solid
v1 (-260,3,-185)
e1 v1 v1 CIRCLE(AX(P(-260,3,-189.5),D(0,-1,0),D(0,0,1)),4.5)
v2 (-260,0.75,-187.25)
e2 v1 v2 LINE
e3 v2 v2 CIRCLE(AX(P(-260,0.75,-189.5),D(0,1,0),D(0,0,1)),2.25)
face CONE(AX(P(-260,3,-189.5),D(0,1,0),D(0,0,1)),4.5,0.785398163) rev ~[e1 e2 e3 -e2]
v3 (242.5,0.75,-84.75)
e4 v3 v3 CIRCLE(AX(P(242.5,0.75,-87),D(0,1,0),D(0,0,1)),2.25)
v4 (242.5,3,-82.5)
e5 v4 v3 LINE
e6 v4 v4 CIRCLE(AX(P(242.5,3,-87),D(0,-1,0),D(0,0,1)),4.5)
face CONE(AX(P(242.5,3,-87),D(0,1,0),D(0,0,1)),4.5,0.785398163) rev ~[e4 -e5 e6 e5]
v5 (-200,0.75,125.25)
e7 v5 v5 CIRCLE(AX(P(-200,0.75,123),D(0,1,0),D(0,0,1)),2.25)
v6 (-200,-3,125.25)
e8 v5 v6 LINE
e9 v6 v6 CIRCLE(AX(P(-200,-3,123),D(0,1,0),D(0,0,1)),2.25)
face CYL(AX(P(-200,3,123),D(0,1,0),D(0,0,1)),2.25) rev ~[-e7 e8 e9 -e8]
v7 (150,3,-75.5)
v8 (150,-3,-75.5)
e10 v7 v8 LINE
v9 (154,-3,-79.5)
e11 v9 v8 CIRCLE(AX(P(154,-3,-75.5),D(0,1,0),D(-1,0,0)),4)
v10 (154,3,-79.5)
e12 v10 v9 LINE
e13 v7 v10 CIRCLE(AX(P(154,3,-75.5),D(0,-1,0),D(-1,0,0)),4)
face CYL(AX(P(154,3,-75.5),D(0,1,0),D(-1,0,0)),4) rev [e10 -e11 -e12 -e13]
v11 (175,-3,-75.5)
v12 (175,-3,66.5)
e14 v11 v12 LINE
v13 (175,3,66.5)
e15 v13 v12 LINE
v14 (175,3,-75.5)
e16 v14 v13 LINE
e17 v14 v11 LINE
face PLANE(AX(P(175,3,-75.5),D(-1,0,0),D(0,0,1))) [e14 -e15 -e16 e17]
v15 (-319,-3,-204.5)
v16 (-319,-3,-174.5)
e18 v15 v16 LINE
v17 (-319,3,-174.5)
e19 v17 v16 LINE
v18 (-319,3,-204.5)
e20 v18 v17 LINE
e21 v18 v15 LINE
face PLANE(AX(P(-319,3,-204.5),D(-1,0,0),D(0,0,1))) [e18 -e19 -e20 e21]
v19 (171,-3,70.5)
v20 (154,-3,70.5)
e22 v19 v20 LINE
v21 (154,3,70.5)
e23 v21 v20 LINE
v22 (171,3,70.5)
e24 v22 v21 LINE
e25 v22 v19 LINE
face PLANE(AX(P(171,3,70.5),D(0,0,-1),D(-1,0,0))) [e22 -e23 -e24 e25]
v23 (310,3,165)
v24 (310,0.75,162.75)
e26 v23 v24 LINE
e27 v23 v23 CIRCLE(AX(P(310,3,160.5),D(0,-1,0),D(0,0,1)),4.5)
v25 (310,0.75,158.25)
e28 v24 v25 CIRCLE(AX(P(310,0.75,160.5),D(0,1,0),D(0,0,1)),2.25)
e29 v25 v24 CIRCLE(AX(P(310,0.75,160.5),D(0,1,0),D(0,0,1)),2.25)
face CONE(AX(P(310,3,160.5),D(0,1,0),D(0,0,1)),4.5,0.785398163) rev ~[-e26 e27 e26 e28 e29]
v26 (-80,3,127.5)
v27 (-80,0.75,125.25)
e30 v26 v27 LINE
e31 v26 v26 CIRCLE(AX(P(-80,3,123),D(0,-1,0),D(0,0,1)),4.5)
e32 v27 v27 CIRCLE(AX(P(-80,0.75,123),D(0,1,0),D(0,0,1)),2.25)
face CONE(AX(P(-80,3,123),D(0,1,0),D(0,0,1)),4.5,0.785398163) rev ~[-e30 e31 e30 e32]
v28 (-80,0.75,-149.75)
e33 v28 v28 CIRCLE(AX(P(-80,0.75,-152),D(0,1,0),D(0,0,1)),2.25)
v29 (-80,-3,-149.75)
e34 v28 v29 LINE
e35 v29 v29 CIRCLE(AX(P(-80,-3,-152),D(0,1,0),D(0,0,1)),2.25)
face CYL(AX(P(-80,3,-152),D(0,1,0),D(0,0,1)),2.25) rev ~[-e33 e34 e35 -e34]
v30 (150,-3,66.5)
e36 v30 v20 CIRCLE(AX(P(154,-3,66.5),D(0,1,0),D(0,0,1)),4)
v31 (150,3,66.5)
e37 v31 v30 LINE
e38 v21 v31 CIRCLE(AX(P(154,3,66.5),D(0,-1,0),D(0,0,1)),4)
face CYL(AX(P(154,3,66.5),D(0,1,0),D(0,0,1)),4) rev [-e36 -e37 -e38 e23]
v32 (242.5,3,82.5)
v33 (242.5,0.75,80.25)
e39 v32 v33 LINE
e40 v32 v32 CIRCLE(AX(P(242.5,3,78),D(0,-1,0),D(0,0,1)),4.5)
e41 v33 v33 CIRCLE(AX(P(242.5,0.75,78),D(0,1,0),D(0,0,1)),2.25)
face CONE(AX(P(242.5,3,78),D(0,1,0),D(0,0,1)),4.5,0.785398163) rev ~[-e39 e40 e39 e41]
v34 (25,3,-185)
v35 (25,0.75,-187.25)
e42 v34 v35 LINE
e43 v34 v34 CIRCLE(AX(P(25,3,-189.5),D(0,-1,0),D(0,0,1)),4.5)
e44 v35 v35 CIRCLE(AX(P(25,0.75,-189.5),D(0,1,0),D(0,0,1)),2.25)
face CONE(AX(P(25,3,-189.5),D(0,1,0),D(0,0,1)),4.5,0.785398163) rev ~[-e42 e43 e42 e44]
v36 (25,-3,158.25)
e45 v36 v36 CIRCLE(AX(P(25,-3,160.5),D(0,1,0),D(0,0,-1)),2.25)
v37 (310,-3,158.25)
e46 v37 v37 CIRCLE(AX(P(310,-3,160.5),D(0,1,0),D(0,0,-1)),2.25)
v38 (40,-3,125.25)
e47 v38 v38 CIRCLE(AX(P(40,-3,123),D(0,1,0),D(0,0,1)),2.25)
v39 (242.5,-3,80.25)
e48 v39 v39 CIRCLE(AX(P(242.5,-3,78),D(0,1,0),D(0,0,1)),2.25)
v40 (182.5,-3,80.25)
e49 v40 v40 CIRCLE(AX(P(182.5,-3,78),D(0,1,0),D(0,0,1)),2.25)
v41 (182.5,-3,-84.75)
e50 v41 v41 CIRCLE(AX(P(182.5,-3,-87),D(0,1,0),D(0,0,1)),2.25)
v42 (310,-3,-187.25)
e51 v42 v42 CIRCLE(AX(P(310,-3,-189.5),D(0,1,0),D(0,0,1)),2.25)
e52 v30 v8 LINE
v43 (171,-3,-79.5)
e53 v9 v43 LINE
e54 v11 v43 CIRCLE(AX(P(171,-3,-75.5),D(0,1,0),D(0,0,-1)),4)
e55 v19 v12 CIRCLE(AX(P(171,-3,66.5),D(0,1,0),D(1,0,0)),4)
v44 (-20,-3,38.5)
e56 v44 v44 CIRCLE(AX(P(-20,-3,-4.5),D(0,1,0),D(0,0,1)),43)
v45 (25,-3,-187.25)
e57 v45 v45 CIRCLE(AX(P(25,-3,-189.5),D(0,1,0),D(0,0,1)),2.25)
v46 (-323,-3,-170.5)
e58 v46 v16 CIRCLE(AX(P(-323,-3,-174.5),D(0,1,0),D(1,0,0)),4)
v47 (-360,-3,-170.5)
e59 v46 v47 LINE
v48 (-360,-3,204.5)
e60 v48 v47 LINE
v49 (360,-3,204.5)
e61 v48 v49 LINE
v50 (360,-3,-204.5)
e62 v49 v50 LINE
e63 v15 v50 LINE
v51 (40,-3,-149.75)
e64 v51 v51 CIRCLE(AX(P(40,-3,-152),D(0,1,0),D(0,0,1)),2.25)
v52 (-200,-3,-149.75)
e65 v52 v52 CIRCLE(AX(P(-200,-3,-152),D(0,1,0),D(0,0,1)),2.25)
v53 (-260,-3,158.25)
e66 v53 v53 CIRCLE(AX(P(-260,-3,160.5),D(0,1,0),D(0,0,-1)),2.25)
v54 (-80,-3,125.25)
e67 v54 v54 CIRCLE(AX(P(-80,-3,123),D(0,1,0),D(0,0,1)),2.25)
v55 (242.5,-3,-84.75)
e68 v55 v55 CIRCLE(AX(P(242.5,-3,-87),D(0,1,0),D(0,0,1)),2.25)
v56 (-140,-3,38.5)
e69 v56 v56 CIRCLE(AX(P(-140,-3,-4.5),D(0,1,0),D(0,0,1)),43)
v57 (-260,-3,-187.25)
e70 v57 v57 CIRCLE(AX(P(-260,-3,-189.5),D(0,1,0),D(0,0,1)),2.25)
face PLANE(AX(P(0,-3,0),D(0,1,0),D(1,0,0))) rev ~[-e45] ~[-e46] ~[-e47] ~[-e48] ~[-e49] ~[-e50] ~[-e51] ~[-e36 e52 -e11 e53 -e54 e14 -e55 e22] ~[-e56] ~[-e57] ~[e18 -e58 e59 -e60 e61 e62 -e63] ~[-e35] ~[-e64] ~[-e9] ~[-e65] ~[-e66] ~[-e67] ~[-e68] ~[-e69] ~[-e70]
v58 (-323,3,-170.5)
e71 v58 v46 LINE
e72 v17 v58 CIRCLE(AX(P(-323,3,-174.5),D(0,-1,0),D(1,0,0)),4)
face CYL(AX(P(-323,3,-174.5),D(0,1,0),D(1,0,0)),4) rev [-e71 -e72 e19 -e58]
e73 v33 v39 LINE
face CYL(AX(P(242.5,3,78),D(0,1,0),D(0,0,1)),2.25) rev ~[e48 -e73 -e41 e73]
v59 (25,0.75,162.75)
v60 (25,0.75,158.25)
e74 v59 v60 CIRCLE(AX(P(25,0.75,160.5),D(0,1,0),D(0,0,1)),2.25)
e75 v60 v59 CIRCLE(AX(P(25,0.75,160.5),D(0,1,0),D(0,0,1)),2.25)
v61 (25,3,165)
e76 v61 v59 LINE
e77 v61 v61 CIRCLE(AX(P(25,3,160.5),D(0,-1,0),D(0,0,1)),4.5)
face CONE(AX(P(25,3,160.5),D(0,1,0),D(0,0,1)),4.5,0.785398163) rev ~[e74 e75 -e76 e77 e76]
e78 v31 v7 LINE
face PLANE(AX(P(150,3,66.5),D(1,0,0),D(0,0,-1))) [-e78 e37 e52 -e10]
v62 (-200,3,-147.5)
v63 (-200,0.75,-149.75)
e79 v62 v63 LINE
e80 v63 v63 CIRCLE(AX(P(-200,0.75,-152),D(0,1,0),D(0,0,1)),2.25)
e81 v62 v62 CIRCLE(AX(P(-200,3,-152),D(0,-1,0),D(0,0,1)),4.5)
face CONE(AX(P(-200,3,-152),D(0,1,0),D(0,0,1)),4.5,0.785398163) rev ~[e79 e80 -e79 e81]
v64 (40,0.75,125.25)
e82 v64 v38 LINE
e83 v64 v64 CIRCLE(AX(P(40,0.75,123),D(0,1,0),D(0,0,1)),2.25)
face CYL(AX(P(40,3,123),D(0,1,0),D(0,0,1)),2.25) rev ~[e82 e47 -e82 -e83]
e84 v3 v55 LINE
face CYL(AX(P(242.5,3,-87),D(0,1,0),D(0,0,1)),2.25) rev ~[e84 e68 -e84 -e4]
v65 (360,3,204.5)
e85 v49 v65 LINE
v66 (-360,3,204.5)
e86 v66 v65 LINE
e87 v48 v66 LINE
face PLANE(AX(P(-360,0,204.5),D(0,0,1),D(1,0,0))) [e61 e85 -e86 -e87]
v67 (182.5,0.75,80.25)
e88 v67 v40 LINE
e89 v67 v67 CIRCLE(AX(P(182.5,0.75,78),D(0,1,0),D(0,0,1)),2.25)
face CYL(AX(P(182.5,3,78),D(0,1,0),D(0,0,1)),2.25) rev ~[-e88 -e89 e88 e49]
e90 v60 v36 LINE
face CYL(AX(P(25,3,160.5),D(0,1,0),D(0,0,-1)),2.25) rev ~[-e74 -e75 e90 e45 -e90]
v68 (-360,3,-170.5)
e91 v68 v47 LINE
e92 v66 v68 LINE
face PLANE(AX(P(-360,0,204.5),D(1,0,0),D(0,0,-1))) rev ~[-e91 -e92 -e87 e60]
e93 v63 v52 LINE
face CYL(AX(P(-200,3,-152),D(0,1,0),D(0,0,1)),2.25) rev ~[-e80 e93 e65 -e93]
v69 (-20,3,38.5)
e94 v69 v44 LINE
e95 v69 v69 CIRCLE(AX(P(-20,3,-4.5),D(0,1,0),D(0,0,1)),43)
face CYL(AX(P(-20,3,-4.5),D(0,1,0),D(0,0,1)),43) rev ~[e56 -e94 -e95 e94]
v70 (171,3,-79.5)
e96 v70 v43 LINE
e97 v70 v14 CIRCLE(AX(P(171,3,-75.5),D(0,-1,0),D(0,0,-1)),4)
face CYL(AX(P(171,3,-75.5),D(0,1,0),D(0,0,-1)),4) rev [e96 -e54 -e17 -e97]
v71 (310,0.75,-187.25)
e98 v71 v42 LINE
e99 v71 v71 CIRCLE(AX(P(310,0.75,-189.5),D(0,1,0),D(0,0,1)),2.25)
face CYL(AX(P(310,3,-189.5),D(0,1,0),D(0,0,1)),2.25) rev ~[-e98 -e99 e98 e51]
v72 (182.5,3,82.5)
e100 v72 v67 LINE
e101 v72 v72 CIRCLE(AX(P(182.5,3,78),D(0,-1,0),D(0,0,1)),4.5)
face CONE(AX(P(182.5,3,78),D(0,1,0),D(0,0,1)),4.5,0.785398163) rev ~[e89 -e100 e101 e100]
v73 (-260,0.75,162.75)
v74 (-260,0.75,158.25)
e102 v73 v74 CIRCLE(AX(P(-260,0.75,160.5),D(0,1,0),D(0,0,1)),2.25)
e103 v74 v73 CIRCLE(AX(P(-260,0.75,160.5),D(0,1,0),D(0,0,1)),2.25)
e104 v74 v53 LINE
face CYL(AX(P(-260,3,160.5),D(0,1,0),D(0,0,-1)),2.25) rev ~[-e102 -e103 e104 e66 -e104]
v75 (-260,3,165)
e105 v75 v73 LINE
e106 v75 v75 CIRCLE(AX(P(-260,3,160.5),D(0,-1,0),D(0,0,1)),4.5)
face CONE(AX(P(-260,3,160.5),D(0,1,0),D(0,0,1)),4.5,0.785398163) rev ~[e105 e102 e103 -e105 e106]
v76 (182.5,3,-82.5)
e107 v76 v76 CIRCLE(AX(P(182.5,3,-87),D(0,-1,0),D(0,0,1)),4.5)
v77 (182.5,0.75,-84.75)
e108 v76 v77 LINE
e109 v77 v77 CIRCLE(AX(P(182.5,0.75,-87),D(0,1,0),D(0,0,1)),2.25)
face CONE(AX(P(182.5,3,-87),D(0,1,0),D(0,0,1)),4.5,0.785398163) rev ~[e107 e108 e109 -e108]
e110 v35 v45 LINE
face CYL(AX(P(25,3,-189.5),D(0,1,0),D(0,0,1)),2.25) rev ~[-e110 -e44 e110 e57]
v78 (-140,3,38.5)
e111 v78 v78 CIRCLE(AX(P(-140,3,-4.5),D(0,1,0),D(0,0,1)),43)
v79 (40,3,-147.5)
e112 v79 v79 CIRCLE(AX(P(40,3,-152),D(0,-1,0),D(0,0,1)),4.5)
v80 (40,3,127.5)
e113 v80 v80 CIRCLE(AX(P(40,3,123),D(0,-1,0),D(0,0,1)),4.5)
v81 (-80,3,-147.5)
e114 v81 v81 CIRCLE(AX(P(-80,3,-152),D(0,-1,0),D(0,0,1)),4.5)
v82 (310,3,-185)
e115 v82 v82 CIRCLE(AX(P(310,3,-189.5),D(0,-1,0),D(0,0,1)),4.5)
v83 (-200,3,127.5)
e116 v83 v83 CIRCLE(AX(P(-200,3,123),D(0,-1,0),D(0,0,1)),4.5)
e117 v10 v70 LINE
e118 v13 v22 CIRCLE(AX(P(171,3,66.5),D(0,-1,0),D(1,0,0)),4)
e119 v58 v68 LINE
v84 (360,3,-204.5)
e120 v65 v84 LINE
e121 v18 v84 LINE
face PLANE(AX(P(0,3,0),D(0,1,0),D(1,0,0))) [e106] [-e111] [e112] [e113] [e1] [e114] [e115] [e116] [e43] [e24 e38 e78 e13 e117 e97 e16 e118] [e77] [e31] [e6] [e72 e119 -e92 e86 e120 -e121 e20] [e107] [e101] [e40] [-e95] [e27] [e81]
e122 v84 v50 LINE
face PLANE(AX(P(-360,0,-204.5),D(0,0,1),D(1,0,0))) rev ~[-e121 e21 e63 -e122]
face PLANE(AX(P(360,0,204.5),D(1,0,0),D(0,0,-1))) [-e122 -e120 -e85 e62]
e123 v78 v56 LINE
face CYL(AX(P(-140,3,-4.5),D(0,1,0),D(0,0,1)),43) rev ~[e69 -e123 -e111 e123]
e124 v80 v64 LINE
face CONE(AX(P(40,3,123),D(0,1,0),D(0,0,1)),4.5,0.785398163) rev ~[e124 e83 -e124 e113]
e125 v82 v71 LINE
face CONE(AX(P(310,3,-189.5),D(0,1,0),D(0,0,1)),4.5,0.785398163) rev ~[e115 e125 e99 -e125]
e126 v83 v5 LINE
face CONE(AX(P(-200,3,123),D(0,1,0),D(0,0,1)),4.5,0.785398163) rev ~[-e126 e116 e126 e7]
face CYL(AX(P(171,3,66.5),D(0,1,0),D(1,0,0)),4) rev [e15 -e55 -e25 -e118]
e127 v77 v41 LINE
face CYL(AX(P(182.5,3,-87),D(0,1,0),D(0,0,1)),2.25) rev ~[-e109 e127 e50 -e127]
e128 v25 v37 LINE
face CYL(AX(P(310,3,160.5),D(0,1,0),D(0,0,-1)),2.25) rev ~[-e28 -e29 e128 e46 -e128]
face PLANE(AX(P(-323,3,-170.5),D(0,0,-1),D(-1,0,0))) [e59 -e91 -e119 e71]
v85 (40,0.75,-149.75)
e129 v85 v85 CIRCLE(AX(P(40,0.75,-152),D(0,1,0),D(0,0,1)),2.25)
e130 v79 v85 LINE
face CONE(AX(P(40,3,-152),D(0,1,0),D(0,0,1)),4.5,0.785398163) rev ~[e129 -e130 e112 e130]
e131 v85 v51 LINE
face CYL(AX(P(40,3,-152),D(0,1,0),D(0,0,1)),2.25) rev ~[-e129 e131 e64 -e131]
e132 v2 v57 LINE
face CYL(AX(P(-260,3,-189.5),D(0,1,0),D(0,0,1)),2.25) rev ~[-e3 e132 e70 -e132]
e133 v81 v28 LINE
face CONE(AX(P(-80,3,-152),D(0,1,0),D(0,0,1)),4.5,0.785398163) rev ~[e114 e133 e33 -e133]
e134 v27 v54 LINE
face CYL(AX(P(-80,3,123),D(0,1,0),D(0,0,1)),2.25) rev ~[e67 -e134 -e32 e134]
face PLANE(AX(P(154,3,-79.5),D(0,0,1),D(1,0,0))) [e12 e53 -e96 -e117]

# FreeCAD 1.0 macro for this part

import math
import FreeCAD as App
import Part
import Sketcher
Q = App.Units.Quantity

doc = App.newDocument("Part")
body = doc.addObject("PartDesign::Body", "Body")

sketch1 = body.newObject("Sketcher::SketchObject", "Sketch")
sketch1.AttachmentSupport = (doc.getObject("XZ_Plane"), [""])
sketch1.MapMode = "FlatFace"
sketch1.addGeometry([
    Part.LineSegment(App.Vector(-360, -204, 0), App.Vector(-360, 204, 0)),
    Part.LineSegment(App.Vector(-360, 204, 0), App.Vector(360, 204, 0)),
    Part.LineSegment(App.Vector(360, 204, 0), App.Vector(360, -204, 0)),
    Part.LineSegment(App.Vector(360, -204, 0), App.Vector(-360, -204, 0)),
], False)
sketch1.addConstraint([
    Sketcher.Constraint("Coincident", 0, 2, 1, 1),
    Sketcher.Constraint("Coincident", 1, 2, 2, 1),
    Sketcher.Constraint("Coincident", 2, 2, 3, 1),
    Sketcher.Constraint("Coincident", 3, 2, 0, 1),
    Sketcher.Constraint("Vertical", 0),
    Sketcher.Constraint("Horizontal", 1),
    Sketcher.Constraint("Vertical", 2),
    Sketcher.Constraint("Horizontal", 3),
    Sketcher.Constraint("Symmetric", 0, 2, 2, 2, -1, 1),
    Sketcher.Constraint("DistanceX", 1, 1, 1, 2, Q("720 mm")),
    Sketcher.Constraint("DistanceY", 0, 1, 0, 2, Q("409 mm")),
])
pad1 = body.newObject("PartDesign::Pad", "Pad")
pad1.Profile = sketch1
pad1.Length = 6
pad1.Midplane = True

sketch2 = body.newObject("Sketcher::SketchObject", "Sketch001")
sketch2.AttachmentSupport = (doc.getObject("XZ_Plane"), [""])
sketch2.MapMode = "FlatFace"
sketch2.AttachmentOffset = App.Placement(App.Vector(0, 0, -3), App.Rotation())
sketch2.addGeometry([
    Part.LineSegment(App.Vector(171, -79.5, 0), App.Vector(154, -79.5, 0)),
    Part.ArcOfCircle(Part.Circle(App.Vector(154, -75.5, 0), App.Vector(0, 0, 1), 4), math.radians(180), math.radians(270)),
    Part.LineSegment(App.Vector(150, -75.5, 0), App.Vector(150, 66.5, 0)),
    Part.ArcOfCircle(Part.Circle(App.Vector(154, 66.5, 0), App.Vector(0, 0, 1), 4), math.radians(90), math.radians(180)),
    Part.LineSegment(App.Vector(154, 70.5, 0), App.Vector(171, 70.5, 0)),
    Part.ArcOfCircle(Part.Circle(App.Vector(171, 66.5, 0), App.Vector(0, 0, 1), 4), math.radians(0), math.radians(90)),
    Part.LineSegment(App.Vector(175, 66.5, 0), App.Vector(175, -75.5, 0)),
    Part.ArcOfCircle(Part.Circle(App.Vector(171, -75.5, 0), App.Vector(0, 0, 1), 4), math.radians(-90), math.radians(0)),
], False)
sketch2.addConstraint([
    Sketcher.Constraint("Tangent", 0, 2, 1, 2),
    Sketcher.Constraint("Tangent", 1, 1, 2, 1),
    Sketcher.Constraint("Tangent", 2, 2, 3, 2),
    Sketcher.Constraint("Tangent", 3, 1, 4, 1),
    Sketcher.Constraint("Tangent", 4, 2, 5, 2),
    Sketcher.Constraint("Tangent", 5, 1, 6, 1),
    Sketcher.Constraint("Tangent", 6, 2, 7, 2),
    Sketcher.Constraint("Tangent", 7, 1, 0, 1),
    Sketcher.Constraint("Horizontal", 0),
    Sketcher.Constraint("Vertical", 2),
    Sketcher.Constraint("Horizontal", 4),
    Sketcher.Constraint("Vertical", 6),
    Sketcher.Constraint("Equal", 1, 3),
    Sketcher.Constraint("Equal", 3, 5),
    Sketcher.Constraint("Equal", 5, 7),
    Sketcher.Constraint("Radius", 1, Q("4 mm")),
    Sketcher.Constraint("DistanceX", 0, 2, 0, 1, Q("17 mm")),
    Sketcher.Constraint("DistanceY", 2, 1, 2, 2, Q("142 mm")),
    Sketcher.Constraint("DistanceX", -1, 1, 1, 3, Q("154 mm")),
    Sketcher.Constraint("DistanceY", 1, 3, -1, 1, Q("75.5 mm")),
])
pocket1 = body.newObject("PartDesign::Pocket", "Pocket")
pocket1.Profile = sketch2
pocket1.Type = "ThroughAll"
pocket1.Reversed = True

sketch3 = body.newObject("Sketcher::SketchObject", "Sketch002")
sketch3.AttachmentSupport = (doc.getObject("XZ_Plane"), [""])
sketch3.MapMode = "FlatFace"
sketch3.AttachmentOffset = App.Placement(App.Vector(0, 0, -3), App.Rotation())
sketch3.addGeometry([
    Part.LineSegment(App.Vector(-319, -204.5, 0), App.Vector(-360, -204.5, 0)),
    Part.LineSegment(App.Vector(-360, -204.5, 0), App.Vector(-360, -170.5, 0)),
    Part.LineSegment(App.Vector(-360, -170.5, 0), App.Vector(-323, -170.5, 0)),
    Part.ArcOfCircle(Part.Circle(App.Vector(-323, -174.5, 0), App.Vector(0, 0, 1), 4), math.radians(0), math.radians(90)),
    Part.LineSegment(App.Vector(-319, -174.5, 0), App.Vector(-319, -204.5, 0)),
], False)
sketch3.addConstraint([
    Sketcher.Constraint("Coincident", 0, 2, 1, 1),
    Sketcher.Constraint("Coincident", 1, 2, 2, 1),
    Sketcher.Constraint("Tangent", 2, 2, 3, 2),
    Sketcher.Constraint("Tangent", 3, 1, 4, 1),
    Sketcher.Constraint("Coincident", 4, 2, 0, 1),
    Sketcher.Constraint("Horizontal", 0),
    Sketcher.Constraint("Vertical", 1),
    Sketcher.Constraint("Horizontal", 2),
    Sketcher.Constraint("Vertical", 4),
    Sketcher.Constraint("Radius", 3, Q("4 mm")),
    Sketcher.Constraint("DistanceX", 0, 2, 0, 1, Q("41 mm")),
    Sketcher.Constraint("DistanceY", 1, 1, 1, 2, Q("34 mm")),
    Sketcher.Constraint("DistanceX", 3, 3, -1, 1, Q("323 mm")),
    Sketcher.Constraint("DistanceY", 3, 3, -1, 1, Q("174.5 mm")),
])
pocket2 = body.newObject("PartDesign::Pocket", "Pocket001")
pocket2.Profile = sketch3
pocket2.Type = "ThroughAll"
pocket2.Reversed = True

sketch4 = body.newObject("Sketcher::SketchObject", "Sketch003")
sketch4.AttachmentSupport = (doc.getObject("XZ_Plane"), [""])
sketch4.MapMode = "FlatFace"
sketch4.AttachmentOffset = App.Placement(App.Vector(0, 0, -3), App.Rotation())
sketch4.addGeometry([
    Part.Circle(App.Vector(-260, -189.5, 0), App.Vector(0, 0, 1), 2.2),
    Part.Circle(App.Vector(25, -189.5, 0), App.Vector(0, 0, 1), 2.2),
    Part.Circle(App.Vector(310, -189.5, 0), App.Vector(0, 0, 1), 2.2),
    Part.Circle(App.Vector(310, 160.5, 0), App.Vector(0, 0, 1), 2.2),
    Part.Circle(App.Vector(25, 160.5, 0), App.Vector(0, 0, 1), 2.2),
    Part.Circle(App.Vector(-260, 160.5, 0), App.Vector(0, 0, 1), 2.2),
    Part.Circle(App.Vector(-200, -152, 0), App.Vector(0, 0, 1), 2.2),
    Part.Circle(App.Vector(-200, 123, 0), App.Vector(0, 0, 1), 2.2),
    Part.Circle(App.Vector(-80, -152, 0), App.Vector(0, 0, 1), 2.2),
    Part.Circle(App.Vector(-80, 123, 0), App.Vector(0, 0, 1), 2.2),
    Part.Circle(App.Vector(40, -152, 0), App.Vector(0, 0, 1), 2.2),
    Part.Circle(App.Vector(40, 123, 0), App.Vector(0, 0, 1), 2.2),
    Part.Circle(App.Vector(182.5, -87, 0), App.Vector(0, 0, 1), 2.2),
    Part.Circle(App.Vector(242.5, -87, 0), App.Vector(0, 0, 1), 2.2),
    Part.Circle(App.Vector(242.5, 78, 0), App.Vector(0, 0, 1), 2.2),
    Part.Circle(App.Vector(182.5, 78, 0), App.Vector(0, 0, 1), 2.2),
], False)
sketch4.addConstraint([
    Sketcher.Constraint("Equal", 0, 1),
    Sketcher.Constraint("Equal", 1, 2),
    Sketcher.Constraint("Equal", 2, 3),
    Sketcher.Constraint("Equal", 3, 4),
    Sketcher.Constraint("Equal", 4, 5),
    Sketcher.Constraint("Equal", 5, 6),
    Sketcher.Constraint("Equal", 6, 7),
    Sketcher.Constraint("Equal", 7, 8),
    Sketcher.Constraint("Equal", 8, 9),
    Sketcher.Constraint("Equal", 9, 10),
    Sketcher.Constraint("Equal", 10, 11),
    Sketcher.Constraint("Equal", 11, 12),
    Sketcher.Constraint("Equal", 12, 13),
    Sketcher.Constraint("Equal", 13, 14),
    Sketcher.Constraint("Equal", 14, 15),
    Sketcher.Constraint("Horizontal", 0, 3, 1, 3),
    Sketcher.Constraint("Horizontal", 1, 3, 2, 3),
    Sketcher.Constraint("Horizontal", 3, 3, 4, 3),
    Sketcher.Constraint("Horizontal", 4, 3, 5, 3),
    Sketcher.Constraint("Horizontal", 6, 3, 8, 3),
    Sketcher.Constraint("Horizontal", 7, 3, 9, 3),
    Sketcher.Constraint("Horizontal", 8, 3, 10, 3),
    Sketcher.Constraint("Horizontal", 9, 3, 11, 3),
    Sketcher.Constraint("Horizontal", 12, 3, 13, 3),
    Sketcher.Constraint("Horizontal", 14, 3, 15, 3),
    Sketcher.Constraint("Vertical", 2, 3, 3, 3),
    Sketcher.Constraint("Vertical", 1, 3, 4, 3),
    Sketcher.Constraint("Vertical", 0, 3, 5, 3),
    Sketcher.Constraint("Vertical", 6, 3, 7, 3),
    Sketcher.Constraint("Vertical", 8, 3, 9, 3),
    Sketcher.Constraint("Vertical", 10, 3, 11, 3),
    Sketcher.Constraint("Vertical", 13, 3, 14, 3),
    Sketcher.Constraint("Vertical", 12, 3, 15, 3),
    Sketcher.Constraint("Diameter", 0, Q("4.5 mm")),
    Sketcher.Constraint("DistanceX", 0, 3, -1, 1, Q("260 mm")),
    Sketcher.Constraint("DistanceX", -1, 1, 1, 3, Q("25 mm")),
    Sketcher.Constraint("DistanceX", -1, 1, 2, 3, Q("310 mm")),
    Sketcher.Constraint("DistanceX", 6, 3, -1, 1, Q("200 mm")),
    Sketcher.Constraint("DistanceY", 6, 3, -1, 1, Q("152 mm")),
    Sketcher.Constraint("DistanceY", -1, 1, 7, 3, Q("123 mm")),
    Sketcher.Constraint("DistanceX", 8, 3, -1, 1, Q("80 mm")),
    Sketcher.Constraint("DistanceX", -1, 1, 10, 3, Q("40 mm")),
    Sketcher.Constraint("DistanceY", 12, 3, -1, 1, Q("87 mm")),
    Sketcher.Constraint("DistanceY", -1, 1, 14, 3, Q("78 mm")),
    Sketcher.Constraint("DistanceY", 2, 3, 3, 3, Q("350 mm")),
    Sketcher.Constraint("DistanceX", 12, 3, 13, 3, Q("60 mm")),
    Sketcher.Constraint("DistanceY", 0, 3, -1, 1, Q("189.5 mm")),
    Sketcher.Constraint("DistanceX", -1, 1, 12, 3, Q("182.5 mm")),
])
pocket3 = body.newObject("PartDesign::Pocket", "Pocket002")
pocket3.Profile = sketch4
pocket3.Type = "ThroughAll"
pocket3.Reversed = True

sketch5 = body.newObject("Sketcher::SketchObject", "Sketch004")
sketch5.AttachmentSupport = (doc.getObject("YZ_Plane"), [""])
sketch5.MapMode = "FlatFace"
sketch5.AttachmentOffset = App.Placement(App.Vector(0, 0, -260), App.Rotation())
sketch5.addGeometry([
    Part.LineSegment(App.Vector(3, -189.5, 0), App.Vector(3, -185, 0)),
    Part.LineSegment(App.Vector(3, -185, 0), App.Vector(-1.5, -189.5, 0)),
    Part.LineSegment(App.Vector(-1.5, -189.5, 0), App.Vector(3, -189.5, 0)),
], False)
sketch5.addGeometry(Part.LineSegment(App.Vector(3, -189.5, 0), App.Vector(-1.5, -189.5, 0)), True)
sketch5.addConstraint([
    Sketcher.Constraint("Coincident", 0, 2, 1, 1),
    Sketcher.Constraint("Coincident", 1, 2, 2, 1),
    Sketcher.Constraint("Coincident", 2, 2, 0, 1),
    Sketcher.Constraint("Vertical", 0),
    Sketcher.Constraint("Horizontal", 2),
    Sketcher.Constraint("Horizontal", 3),
    Sketcher.Constraint("Coincident", 3, 1, 2, 2),
    Sketcher.Constraint("Equal", 2, 3),
    Sketcher.Constraint("Equal", 3, 0),
    Sketcher.Constraint("DistanceX", 2, 1, 2, 2, Q("4.5 mm")),
    Sketcher.Constraint("DistanceX", -1, 1, 0, 2, Q("3 mm")),
    Sketcher.Constraint("DistanceY", 0, 2, -1, 1, Q("185 mm")),
])
groove = body.newObject("PartDesign::Groove", "Groove")
groove.Profile = sketch5
groove.ReferenceAxis = (sketch5, ["Axis0"])
groove.Angle = 360

sketch6 = body.newObject("Sketcher::SketchObject", "Sketch005")
sketch6.AttachmentSupport = (doc.getObject("YZ_Plane"), [""])
sketch6.MapMode = "FlatFace"
sketch6.AttachmentOffset = App.Placement(App.Vector(0, 0, -200), App.Rotation())
sketch6.addGeometry([
    Part.LineSegment(App.Vector(3, -152, 0), App.Vector(3, -147.5, 0)),
    Part.LineSegment(App.Vector(3, -147.5, 0), App.Vector(-1.5, -152, 0)),
    Part.LineSegment(App.Vector(-1.5, -152, 0), App.Vector(3, -152, 0)),
], False)
sketch6.addGeometry(Part.LineSegment(App.Vector(3, -152, 0), App.Vector(-1.5, -152, 0)), True)
sketch6.addConstraint([
    Sketcher.Constraint("Coincident", 0, 2, 1, 1),
    Sketcher.Constraint("Coincident", 1, 2, 2, 1),
    Sketcher.Constraint("Coincident", 2, 2, 0, 1),
    Sketcher.Constraint("Vertical", 0),
    Sketcher.Constraint("Horizontal", 2),
    Sketcher.Constraint("Horizontal", 3),
    Sketcher.Constraint("Coincident", 3, 1, 2, 2),
    Sketcher.Constraint("Equal", 2, 3),
    Sketcher.Constraint("Equal", 3, 0),
    Sketcher.Constraint("DistanceX", 2, 1, 2, 2, Q("4.5 mm")),
    Sketcher.Constraint("DistanceX", -1, 1, 0, 2, Q("3 mm")),
    Sketcher.Constraint("DistanceY", 1, 2, -1, 1, Q("152 mm")),
])
groove2 = body.newObject("PartDesign::Groove", "Groove001")
groove2.Profile = sketch6
groove2.ReferenceAxis = (sketch6, ["Axis0"])
groove2.Angle = 360

sketch7 = body.newObject("Sketcher::SketchObject", "Sketch006")
sketch7.AttachmentSupport = (doc.getObject("YZ_Plane"), [""])
sketch7.MapMode = "FlatFace"
sketch7.AttachmentOffset = App.Placement(App.Vector(0, 0, -80), App.Rotation())
sketch7.addGeometry([
    Part.LineSegment(App.Vector(3, -152, 0), App.Vector(3, -147.5, 0)),
    Part.LineSegment(App.Vector(3, -147.5, 0), App.Vector(-1.5, -152, 0)),
    Part.LineSegment(App.Vector(-1.5, -152, 0), App.Vector(3, -152, 0)),
], False)
sketch7.addGeometry(Part.LineSegment(App.Vector(3, -152, 0), App.Vector(-1.5, -152, 0)), True)
sketch7.addConstraint([
    Sketcher.Constraint("Coincident", 0, 2, 1, 1),
    Sketcher.Constraint("Coincident", 1, 2, 2, 1),
    Sketcher.Constraint("Coincident", 2, 2, 0, 1),
    Sketcher.Constraint("Vertical", 0),
    Sketcher.Constraint("Horizontal", 2),
    Sketcher.Constraint("Horizontal", 3),
    Sketcher.Constraint("Coincident", 3, 1, 2, 2),
    Sketcher.Constraint("Equal", 2, 3),
    Sketcher.Constraint("Equal", 3, 0),
    Sketcher.Constraint("DistanceX", 2, 1, 2, 2, Q("4.5 mm")),
    Sketcher.Constraint("DistanceX", -1, 1, 0, 2, Q("3 mm")),
    Sketcher.Constraint("DistanceY", 1, 2, -1, 1, Q("152 mm")),
])
groove3 = body.newObject("PartDesign::Groove", "Groove002")
groove3.Profile = sketch7
groove3.ReferenceAxis = (sketch7, ["Axis0"])
groove3.Angle = 360

sketch8 = body.newObject("Sketcher::SketchObject", "Sketch007")
sketch8.AttachmentSupport = (doc.getObject("YZ_Plane"), [""])
sketch8.MapMode = "FlatFace"
sketch8.AttachmentOffset = App.Placement(App.Vector(0, 0, 25), App.Rotation())
sketch8.addGeometry([
    Part.LineSegment(App.Vector(3, -189.5, 0), App.Vector(3, -185, 0)),
    Part.LineSegment(App.Vector(3, -185, 0), App.Vector(-1.5, -189.5, 0)),
    Part.LineSegment(App.Vector(-1.5, -189.5, 0), App.Vector(3, -189.5, 0)),
], False)
sketch8.addGeometry(Part.LineSegment(App.Vector(3, -189.5, 0), App.Vector(-1.5, -189.5, 0)), True)
sketch8.addConstraint([
    Sketcher.Constraint("Coincident", 0, 2, 1, 1),
    Sketcher.Constraint("Coincident", 1, 2, 2, 1),
    Sketcher.Constraint("Coincident", 2, 2, 0, 1),
    Sketcher.Constraint("Vertical", 0),
    Sketcher.Constraint("Horizontal", 2),
    Sketcher.Constraint("Horizontal", 3),
    Sketcher.Constraint("Coincident", 3, 1, 2, 2),
    Sketcher.Constraint("Equal", 2, 3),
    Sketcher.Constraint("Equal", 3, 0),
    Sketcher.Constraint("DistanceX", 2, 1, 2, 2, Q("4.5 mm")),
    Sketcher.Constraint("DistanceX", -1, 1, 0, 2, Q("3 mm")),
    Sketcher.Constraint("DistanceY", 0, 2, -1, 1, Q("185 mm")),
])
groove4 = body.newObject("PartDesign::Groove", "Groove003")
groove4.Profile = sketch8
groove4.ReferenceAxis = (sketch8, ["Axis0"])
groove4.Angle = 360

sketch9 = body.newObject("Sketcher::SketchObject", "Sketch008")
sketch9.AttachmentSupport = (doc.getObject("YZ_Plane"), [""])
sketch9.MapMode = "FlatFace"
sketch9.AttachmentOffset = App.Placement(App.Vector(0, 0, 40), App.Rotation())
sketch9.addGeometry([
    Part.LineSegment(App.Vector(3, -152, 0), App.Vector(3, -147.5, 0)),
    Part.LineSegment(App.Vector(3, -147.5, 0), App.Vector(-1.5, -152, 0)),
    Part.LineSegment(App.Vector(-1.5, -152, 0), App.Vector(3, -152, 0)),
], False)
sketch9.addGeometry(Part.LineSegment(App.Vector(3, -152, 0), App.Vector(-1.5, -152, 0)), True)
sketch9.addConstraint([
    Sketcher.Constraint("Coincident", 0, 2, 1, 1),
    Sketcher.Constraint("Coincident", 1, 2, 2, 1),
    Sketcher.Constraint("Coincident", 2, 2, 0, 1),
    Sketcher.Constraint("Vertical", 0),
    Sketcher.Constraint("Horizontal", 2),
    Sketcher.Constraint("Horizontal", 3),
    Sketcher.Constraint("Coincident", 3, 1, 2, 2),
    Sketcher.Constraint("Equal", 2, 3),
    Sketcher.Constraint("Equal", 3, 0),
    Sketcher.Constraint("DistanceX", 2, 1, 2, 2, Q("4.5 mm")),
    Sketcher.Constraint("DistanceX", -1, 1, 0, 2, Q("3 mm")),
    Sketcher.Constraint("DistanceY", 1, 2, -1, 1, Q("152 mm")),
])
groove5 = body.newObject("PartDesign::Groove", "Groove004")
groove5.Profile = sketch9
groove5.ReferenceAxis = (sketch9, ["Axis0"])
groove5.Angle = 360

sketch10 = body.newObject("Sketcher::SketchObject", "Sketch009")
sketch10.AttachmentSupport = (doc.getObject("YZ_Plane"), [""])
sketch10.MapMode = "FlatFace"
sketch10.AttachmentOffset = App.Placement(App.Vector(0, 0, 310), App.Rotation())
sketch10.addGeometry([
    Part.LineSegment(App.Vector(3, -189.5, 0), App.Vector(3, -185, 0)),
    Part.LineSegment(App.Vector(3, -185, 0), App.Vector(-1.5, -189.5, 0)),
    Part.LineSegment(App.Vector(-1.5, -189.5, 0), App.Vector(3, -189.5, 0)),
], False)
sketch10.addGeometry(Part.LineSegment(App.Vector(3, -189.5, 0), App.Vector(-1.5, -189.5, 0)), True)
sketch10.addConstraint([
    Sketcher.Constraint("Coincident", 0, 2, 1, 1),
    Sketcher.Constraint("Coincident", 1, 2, 2, 1),
    Sketcher.Constraint("Coincident", 2, 2, 0, 1),
    Sketcher.Constraint("Vertical", 0),
    Sketcher.Constraint("Horizontal", 2),
    Sketcher.Constraint("Horizontal", 3),
    Sketcher.Constraint("Coincident", 3, 1, 2, 2),
    Sketcher.Constraint("Equal", 2, 3),
    Sketcher.Constraint("Equal", 3, 0),
    Sketcher.Constraint("DistanceX", 2, 1, 2, 2, Q("4.5 mm")),
    Sketcher.Constraint("DistanceX", -1, 1, 0, 2, Q("3 mm")),
    Sketcher.Constraint("DistanceY", 0, 2, -1, 1, Q("185 mm")),
])
groove6 = body.newObject("PartDesign::Groove", "Groove005")
groove6.Profile = sketch10
groove6.ReferenceAxis = (sketch10, ["Axis0"])
groove6.Angle = 360

sketch11 = body.newObject("Sketcher::SketchObject", "Sketch010")
sketch11.AttachmentSupport = (doc.getObject("YZ_Plane"), [""])
sketch11.MapMode = "FlatFace"
sketch11.AttachmentOffset = App.Placement(App.Vector(0, 0, -200), App.Rotation())
sketch11.addGeometry([
    Part.LineSegment(App.Vector(3, 123, 0), App.Vector(3, 127.5, 0)),
    Part.LineSegment(App.Vector(3, 127.5, 0), App.Vector(-1.5, 123, 0)),
    Part.LineSegment(App.Vector(-1.5, 123, 0), App.Vector(3, 123, 0)),
], False)
sketch11.addGeometry(Part.LineSegment(App.Vector(3, 123, 0), App.Vector(-1.5, 123, 0)), True)
sketch11.addConstraint([
    Sketcher.Constraint("Coincident", 0, 2, 1, 1),
    Sketcher.Constraint("Coincident", 1, 2, 2, 1),
    Sketcher.Constraint("Coincident", 2, 2, 0, 1),
    Sketcher.Constraint("Vertical", 0),
    Sketcher.Constraint("Horizontal", 2),
    Sketcher.Constraint("Horizontal", 3),
    Sketcher.Constraint("Coincident", 3, 1, 2, 2),
    Sketcher.Constraint("Equal", 2, 3),
    Sketcher.Constraint("Equal", 3, 0),
    Sketcher.Constraint("DistanceX", 2, 1, 2, 2, Q("4.5 mm")),
    Sketcher.Constraint("DistanceX", -1, 1, 0, 2, Q("3 mm")),
    Sketcher.Constraint("DistanceY", -1, 1, 1, 2, Q("123 mm")),
])
groove7 = body.newObject("PartDesign::Groove", "Groove006")
groove7.Profile = sketch11
groove7.ReferenceAxis = (sketch11, ["Axis0"])
groove7.Angle = 360

sketch12 = body.newObject("Sketcher::SketchObject", "Sketch011")
sketch12.AttachmentSupport = (doc.getObject("YZ_Plane"), [""])
sketch12.MapMode = "FlatFace"
sketch12.AttachmentOffset = App.Placement(App.Vector(0, 0, -260), App.Rotation())
sketch12.addGeometry([
    Part.LineSegment(App.Vector(3, 160.5, 0), App.Vector(3, 165, 0)),
    Part.LineSegment(App.Vector(3, 165, 0), App.Vector(-1.5, 160.5, 0)),
    Part.LineSegment(App.Vector(-1.5, 160.5, 0), App.Vector(3, 160.5, 0)),
], False)
sketch12.addGeometry(Part.LineSegment(App.Vector(3, 160.5, 0), App.Vector(-1.5, 160.5, 0)), True)
sketch12.addConstraint([
    Sketcher.Constraint("Coincident", 0, 2, 1, 1),
    Sketcher.Constraint("Coincident", 1, 2, 2, 1),
    Sketcher.Constraint("Coincident", 2, 2, 0, 1),
    Sketcher.Constraint("Vertical", 0),
    Sketcher.Constraint("Horizontal", 2),
    Sketcher.Constraint("Horizontal", 3),
    Sketcher.Constraint("Coincident", 3, 1, 2, 2),
    Sketcher.Constraint("Equal", 2, 3),
    Sketcher.Constraint("Equal", 3, 0),
    Sketcher.Constraint("DistanceX", 2, 1, 2, 2, Q("4.5 mm")),
    Sketcher.Constraint("DistanceX", -1, 1, 0, 2, Q("3 mm")),
    Sketcher.Constraint("DistanceY", -1, 1, 0, 2, Q("165 mm")),
])
groove8 = body.newObject("PartDesign::Groove", "Groove007")
groove8.Profile = sketch12
groove8.ReferenceAxis = (sketch12, ["Axis0"])
groove8.Angle = 360

sketch13 = body.newObject("Sketcher::SketchObject", "Sketch012")
sketch13.AttachmentSupport = (doc.getObject("YZ_Plane"), [""])
sketch13.MapMode = "FlatFace"
sketch13.AttachmentOffset = App.Placement(App.Vector(0, 0, -80), App.Rotation())
sketch13.addGeometry([
    Part.LineSegment(App.Vector(3, 123, 0), App.Vector(3, 127.5, 0)),
    Part.LineSegment(App.Vector(3, 127.5, 0), App.Vector(-1.5, 123, 0)),
    Part.LineSegment(App.Vector(-1.5, 123, 0), App.Vector(3, 123, 0)),
], False)
sketch13.addGeometry(Part.LineSegment(App.Vector(3, 123, 0), App.Vector(-1.5, 123, 0)), True)
sketch13.addConstraint([
    Sketcher.Constraint("Coincident", 0, 2, 1, 1),
    Sketcher.Constraint("Coincident", 1, 2, 2, 1),
    Sketcher.Constraint("Coincident", 2, 2, 0, 1),
    Sketcher.Constraint("Vertical", 0),
    Sketcher.Constraint("Horizontal", 2),
    Sketcher.Constraint("Horizontal", 3),
    Sketcher.Constraint("Coincident", 3, 1, 2, 2),
    Sketcher.Constraint("Equal", 2, 3),
    Sketcher.Constraint("Equal", 3, 0),
    Sketcher.Constraint("DistanceX", 2, 1, 2, 2, Q("4.5 mm")),
    Sketcher.Constraint("DistanceX", -1, 1, 0, 2, Q("3 mm")),
    Sketcher.Constraint("DistanceY", -1, 1, 1, 2, Q("123 mm")),
])
groove9 = body.newObject("PartDesign::Groove", "Groove008")
groove9.Profile = sketch13
groove9.ReferenceAxis = (sketch13, ["Axis0"])
groove9.Angle = 360

sketch14 = body.newObject("Sketcher::SketchObject", "Sketch013")
sketch14.AttachmentSupport = (doc.getObject("YZ_Plane"), [""])
sketch14.MapMode = "FlatFace"
sketch14.AttachmentOffset = App.Placement(App.Vector(0, 0, 25), App.Rotation())
sketch14.addGeometry([
    Part.LineSegment(App.Vector(3, 160.5, 0), App.Vector(3, 165, 0)),
    Part.LineSegment(App.Vector(3, 165, 0), App.Vector(-1.5, 160.5, 0)),
    Part.LineSegment(App.Vector(-1.5, 160.5, 0), App.Vector(3, 160.5, 0)),
], False)
sketch14.addGeometry(Part.LineSegment(App.Vector(3, 160.5, 0), App.Vector(-1.5, 160.5, 0)), True)
sketch14.addConstraint([
    Sketcher.Constraint("Coincident", 0, 2, 1, 1),
    Sketcher.Constraint("Coincident", 1, 2, 2, 1),
    Sketcher.Constraint("Coincident", 2, 2, 0, 1),
    Sketcher.Constraint("Vertical", 0),
    Sketcher.Constraint("Horizontal", 2),
    Sketcher.Constraint("Horizontal", 3),
    Sketcher.Constraint("Coincident", 3, 1, 2, 2),
    Sketcher.Constraint("Equal", 2, 3),
    Sketcher.Constraint("Equal", 3, 0),
    Sketcher.Constraint("DistanceX", 2, 1, 2, 2, Q("4.5 mm")),
    Sketcher.Constraint("DistanceX", -1, 1, 0, 2, Q("3 mm")),
    Sketcher.Constraint("DistanceY", -1, 1, 0, 2, Q("165 mm")),
])
groove10 = body.newObject("PartDesign::Groove", "Groove009")
groove10.Profile = sketch14
groove10.ReferenceAxis = (sketch14, ["Axis0"])
groove10.Angle = 360

sketch15 = body.newObject("Sketcher::SketchObject", "Sketch014")
sketch15.AttachmentSupport = (doc.getObject("YZ_Plane"), [""])
sketch15.MapMode = "FlatFace"
sketch15.AttachmentOffset = App.Placement(App.Vector(0, 0, 40), App.Rotation())
sketch15.addGeometry([
    Part.LineSegment(App.Vector(3, 123, 0), App.Vector(3, 127.5, 0)),
    Part.LineSegment(App.Vector(3, 127.5, 0), App.Vector(-1.5, 123, 0)),
    Part.LineSegment(App.Vector(-1.5, 123, 0), App.Vector(3, 123, 0)),
], False)
sketch15.addGeometry(Part.LineSegment(App.Vector(3, 123, 0), App.Vector(-1.5, 123, 0)), True)
sketch15.addConstraint([
    Sketcher.Constraint("Coincident", 0, 2, 1, 1),
    Sketcher.Constraint("Coincident", 1, 2, 2, 1),
    Sketcher.Constraint("Coincident", 2, 2, 0, 1),
    Sketcher.Constraint("Vertical", 0),
    Sketcher.Constraint("Horizontal", 2),
    Sketcher.Constraint("Horizontal", 3),
    Sketcher.Constraint("Coincident", 3, 1, 2, 2),
    Sketcher.Constraint("Equal", 2, 3),
    Sketcher.Constraint("Equal", 3, 0),
    Sketcher.Constraint("DistanceX", 2, 1, 2, 2, Q("4.5 mm")),
    Sketcher.Constraint("DistanceX", -1, 1, 0, 2, Q("3 mm")),
    Sketcher.Constraint("DistanceY", -1, 1, 1, 2, Q("123 mm")),
])
groove11 = body.newObject("PartDesign::Groove", "Groove010")
groove11.Profile = sketch15
groove11.ReferenceAxis = (sketch15, ["Axis0"])
groove11.Angle = 360

sketch16 = body.newObject("Sketcher::SketchObject", "Sketch015")
sketch16.AttachmentSupport = (doc.getObject("YZ_Plane"), [""])
sketch16.MapMode = "FlatFace"
sketch16.AttachmentOffset = App.Placement(App.Vector(0, 0, 310), App.Rotation())
sketch16.addGeometry([
    Part.LineSegment(App.Vector(3, 160.5, 0), App.Vector(3, 165, 0)),
    Part.LineSegment(App.Vector(3, 165, 0), App.Vector(-1.5, 160.5, 0)),
    Part.LineSegment(App.Vector(-1.5, 160.5, 0), App.Vector(3, 160.5, 0)),
], False)
sketch16.addGeometry(Part.LineSegment(App.Vector(3, 160.5, 0), App.Vector(-1.5, 160.5, 0)), True)
sketch16.addConstraint([
    Sketcher.Constraint("Coincident", 0, 2, 1, 1),
    Sketcher.Constraint("Coincident", 1, 2, 2, 1),
    Sketcher.Constraint("Coincident", 2, 2, 0, 1),
    Sketcher.Constraint("Vertical", 0),
    Sketcher.Constraint("Horizontal", 2),
    Sketcher.Constraint("Horizontal", 3),
    Sketcher.Constraint("Coincident", 3, 1, 2, 2),
    Sketcher.Constraint("Equal", 2, 3),
    Sketcher.Constraint("Equal", 3, 0),
    Sketcher.Constraint("DistanceX", 2, 1, 2, 2, Q("4.5 mm")),
    Sketcher.Constraint("DistanceX", -1, 1, 0, 2, Q("3 mm")),
    Sketcher.Constraint("DistanceY", -1, 1, 0, 2, Q("165 mm")),
])
groove12 = body.newObject("PartDesign::Groove", "Groove011")
groove12.Profile = sketch16
groove12.ReferenceAxis = (sketch16, ["Axis0"])
groove12.Angle = 360

sketch17 = body.newObject("Sketcher::SketchObject", "Sketch016")
sketch17.AttachmentSupport = (doc.getObject("YZ_Plane"), [""])
sketch17.MapMode = "FlatFace"
sketch17.AttachmentOffset = App.Placement(App.Vector(0, 0, 182.5), App.Rotation())
sketch17.addGeometry([
    Part.LineSegment(App.Vector(3, -87, 0), App.Vector(3, -82.5, 0)),
    Part.LineSegment(App.Vector(3, -82.5, 0), App.Vector(-1.5, -87, 0)),
    Part.LineSegment(App.Vector(-1.5, -87, 0), App.Vector(3, -87, 0)),
], False)
sketch17.addGeometry(Part.LineSegment(App.Vector(3, -87, 0), App.Vector(-1.5, -87, 0)), True)
sketch17.addConstraint([
    Sketcher.Constraint("Coincident", 0, 2, 1, 1),
    Sketcher.Constraint("Coincident", 1, 2, 2, 1),
    Sketcher.Constraint("Coincident", 2, 2, 0, 1),
    Sketcher.Constraint("Vertical", 0),
    Sketcher.Constraint("Horizontal", 2),
    Sketcher.Constraint("Horizontal", 3),
    Sketcher.Constraint("Coincident", 3, 1, 2, 2),
    Sketcher.Constraint("Equal", 2, 3),
    Sketcher.Constraint("Equal", 3, 0),
    Sketcher.Constraint("DistanceX", 2, 1, 2, 2, Q("4.5 mm")),
    Sketcher.Constraint("DistanceX", -1, 1, 0, 2, Q("3 mm")),
    Sketcher.Constraint("DistanceY", 1, 2, -1, 1, Q("87 mm")),
])
groove13 = body.newObject("PartDesign::Groove", "Groove012")
groove13.Profile = sketch17
groove13.ReferenceAxis = (sketch17, ["Axis0"])
groove13.Angle = 360

sketch18 = body.newObject("Sketcher::SketchObject", "Sketch017")
sketch18.AttachmentSupport = (doc.getObject("YZ_Plane"), [""])
sketch18.MapMode = "FlatFace"
sketch18.AttachmentOffset = App.Placement(App.Vector(0, 0, 242.5), App.Rotation())
sketch18.addGeometry([
    Part.LineSegment(App.Vector(3, -87, 0), App.Vector(3, -82.5, 0)),
    Part.LineSegment(App.Vector(3, -82.5, 0), App.Vector(-1.5, -87, 0)),
    Part.LineSegment(App.Vector(-1.5, -87, 0), App.Vector(3, -87, 0)),
], False)
sketch18.addGeometry(Part.LineSegment(App.Vector(3, -87, 0), App.Vector(-1.5, -87, 0)), True)
sketch18.addConstraint([
    Sketcher.Constraint("Coincident", 0, 2, 1, 1),
    Sketcher.Constraint("Coincident", 1, 2, 2, 1),
    Sketcher.Constraint("Coincident", 2, 2, 0, 1),
    Sketcher.Constraint("Vertical", 0),
    Sketcher.Constraint("Horizontal", 2),
    Sketcher.Constraint("Horizontal", 3),
    Sketcher.Constraint("Coincident", 3, 1, 2, 2),
    Sketcher.Constraint("Equal", 2, 3),
    Sketcher.Constraint("Equal", 3, 0),
    Sketcher.Constraint("DistanceX", 2, 1, 2, 2, Q("4.5 mm")),
    Sketcher.Constraint("DistanceX", -1, 1, 0, 2, Q("3 mm")),
    Sketcher.Constraint("DistanceY", 1, 2, -1, 1, Q("87 mm")),
])
groove14 = body.newObject("PartDesign::Groove", "Groove013")
groove14.Profile = sketch18
groove14.ReferenceAxis = (sketch18, ["Axis0"])
groove14.Angle = 360

sketch19 = body.newObject("Sketcher::SketchObject", "Sketch018")
sketch19.AttachmentSupport = (doc.getObject("YZ_Plane"), [""])
sketch19.MapMode = "FlatFace"
sketch19.AttachmentOffset = App.Placement(App.Vector(0, 0, 182.5), App.Rotation())
sketch19.addGeometry([
    Part.LineSegment(App.Vector(3, 78, 0), App.Vector(3, 82.5, 0)),
    Part.LineSegment(App.Vector(3, 82.5, 0), App.Vector(-1.5, 78, 0)),
    Part.LineSegment(App.Vector(-1.5, 78, 0), App.Vector(3, 78, 0)),
], False)
sketch19.addGeometry(Part.LineSegment(App.Vector(3, 78, 0), App.Vector(-1.5, 78, 0)), True)
sketch19.addConstraint([
    Sketcher.Constraint("Coincident", 0, 2, 1, 1),
    Sketcher.Constraint("Coincident", 1, 2, 2, 1),
    Sketcher.Constraint("Coincident", 2, 2, 0, 1),
    Sketcher.Constraint("Vertical", 0),
    Sketcher.Constraint("Horizontal", 2),
    Sketcher.Constraint("Horizontal", 3),
    Sketcher.Constraint("Coincident", 3, 1, 2, 2),
    Sketcher.Constraint("Equal", 2, 3),
    Sketcher.Constraint("Equal", 3, 0),
    Sketcher.Constraint("DistanceX", 2, 1, 2, 2, Q("4.5 mm")),
    Sketcher.Constraint("DistanceX", -1, 1, 0, 2, Q("3 mm")),
    Sketcher.Constraint("DistanceY", -1, 1, 1, 2, Q("78 mm")),
])
groove15 = body.newObject("PartDesign::Groove", "Groove014")
groove15.Profile = sketch19
groove15.ReferenceAxis = (sketch19, ["Axis0"])
groove15.Angle = 360

sketch20 = body.newObject("Sketcher::SketchObject", "Sketch019")
sketch20.AttachmentSupport = (doc.getObject("YZ_Plane"), [""])
sketch20.MapMode = "FlatFace"
sketch20.AttachmentOffset = App.Placement(App.Vector(0, 0, 242.5), App.Rotation())
sketch20.addGeometry([
    Part.LineSegment(App.Vector(3, 78, 0), App.Vector(3, 82.5, 0)),
    Part.LineSegment(App.Vector(3, 82.5, 0), App.Vector(-1.5, 78, 0)),
    Part.LineSegment(App.Vector(-1.5, 78, 0), App.Vector(3, 78, 0)),
], False)
sketch20.addGeometry(Part.LineSegment(App.Vector(3, 78, 0), App.Vector(-1.5, 78, 0)), True)
sketch20.addConstraint([
    Sketcher.Constraint("Coincident", 0, 2, 1, 1),
    Sketcher.Constraint("Coincident", 1, 2, 2, 1),
    Sketcher.Constraint("Coincident", 2, 2, 0, 1),
    Sketcher.Constraint("Vertical", 0),
    Sketcher.Constraint("Horizontal", 2),
    Sketcher.Constraint("Horizontal", 3),
    Sketcher.Constraint("Coincident", 3, 1, 2, 2),
    Sketcher.Constraint("Equal", 2, 3),
    Sketcher.Constraint("Equal", 3, 0),
    Sketcher.Constraint("DistanceX", 2, 1, 2, 2, Q("4.5 mm")),
    Sketcher.Constraint("DistanceX", -1, 1, 0, 2, Q("3 mm")),
    Sketcher.Constraint("DistanceY", -1, 1, 1, 2, Q("78 mm")),
])
groove16 = body.newObject("PartDesign::Groove", "Groove015")
groove16.Profile = sketch20
groove16.ReferenceAxis = (sketch20, ["Axis0"])
groove16.Angle = 360

sketch21 = body.newObject("Sketcher::SketchObject", "Sketch020")
sketch21.AttachmentSupport = (doc.getObject("XZ_Plane"), [""])
sketch21.MapMode = "FlatFace"
sketch21.AttachmentOffset = App.Placement(App.Vector(0, 0, -3), App.Rotation())
sketch21.addGeometry([
    Part.Circle(App.Vector(-20, -4, 0), App.Vector(0, 0, 1), 43),
    Part.Circle(App.Vector(-140, -4, 0), App.Vector(0, 0, 1), 43),
], False)
sketch21.addConstraint([
    Sketcher.Constraint("Equal", 0, 1),
    Sketcher.Constraint("Horizontal", 0, 3, 1, 3),
    Sketcher.Constraint("Diameter", 0, Q("86 mm")),
    Sketcher.Constraint("DistanceX", 0, 3, -1, 1, Q("20 mm")),
    Sketcher.Constraint("DistanceX", 1, 3, -1, 1, Q("140 mm")),
    Sketcher.Constraint("DistanceY", 0, 3, -1, 1, Q("4.5 mm")),
])
pocket4 = body.newObject("PartDesign::Pocket", "Pocket003")
pocket4.Profile = sketch21
pocket4.Type = "ThroughAll"
pocket4.Reversed = True

doc.recompute()
